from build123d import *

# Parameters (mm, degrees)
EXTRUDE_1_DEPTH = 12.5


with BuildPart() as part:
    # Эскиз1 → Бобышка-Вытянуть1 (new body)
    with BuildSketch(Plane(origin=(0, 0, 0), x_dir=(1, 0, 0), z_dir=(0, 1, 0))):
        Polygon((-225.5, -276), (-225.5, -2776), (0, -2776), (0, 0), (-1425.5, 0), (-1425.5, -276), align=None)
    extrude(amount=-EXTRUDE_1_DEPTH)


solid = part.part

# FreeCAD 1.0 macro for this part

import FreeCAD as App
import Part
import Sketcher


def add_polygon(sketch, points):
    """Adds a closed chain of lines whose ends are joined by coincident constraints."""
    first, n = sketch.GeometryCount, len(points)
    for a, b in zip(points, points[1:] + points[:1]):
        sketch.addGeometry(Part.LineSegment(App.Vector(*a, 0), App.Vector(*b, 0)), False)
    for i in range(n):
        sketch.addConstraint(Sketcher.Constraint("Coincident", first + i, 2, first + (i + 1) % n, 1))

doc = App.newDocument("Part")
params = doc.addObject("Spreadsheet::Sheet", "Params")
for row, (alias, value) in enumerate([
    ("sketch1_width", "1200 mm"),
    ("sketch1_height", "2500 mm"),
    ("sketch1_height2", "2776 mm"),
    ("sketch1_width2", "225.5 mm"),
    ("pad1_length", "12.5 mm"),
], start=1):
    params.set(f"A{row}", alias)
    params.set(f"B{row}", "=" + value)
    params.setAlias(f"B{row}", alias)

body = doc.addObject("PartDesign::Body", "Body")

sketch1 = doc.addObject("Sketcher::SketchObject", "Sketch")
body.addObject(sketch1)
sketch1.AttachmentSupport = (doc.XZ_Plane, [""])
sketch1.MapMode = "FlatFace"
add_polygon(sketch1, [(-225.5, 276), (-225.5, 2776), (0, 2776), (0, 0), (-1425.5, 0), (-1425.5, 276)])
sketch1.addConstraint(Sketcher.Constraint("Vertical", 0))
sketch1.addConstraint(Sketcher.Constraint("Horizontal", 1))
sketch1.addConstraint(Sketcher.Constraint("Vertical", 2))
sketch1.addConstraint(Sketcher.Constraint("Horizontal", 3))
sketch1.addConstraint(Sketcher.Constraint("Vertical", 4))
sketch1.addConstraint(Sketcher.Constraint("Horizontal", 5))
sketch1.addConstraint(Sketcher.Constraint("Coincident", 2, 2, -1, 1))
sketch1.addConstraint(Sketcher.Constraint("DistanceX", 5, 1, 5, 2, 1200.0))
sketch1.addConstraint(Sketcher.Constraint("DistanceY", 0, 1, 0, 2, 2500.0))
sketch1.addConstraint(Sketcher.Constraint("DistanceY", 2, 2, 2, 1, 2776.0))
sketch1.addConstraint(Sketcher.Constraint("DistanceX", 1, 1, 1, 2, 225.5))
sketch1.setExpression("Constraints[13]", "Params.sketch1_width")
sketch1.setExpression("Constraints[14]", "Params.sketch1_height")
sketch1.setExpression("Constraints[15]", "Params.sketch1_height2")
sketch1.setExpression("Constraints[16]", "Params.sketch1_width2")
pad1 = doc.addObject("PartDesign::Pad", "Pad")
body.addObject(pad1)
pad1.Profile = sketch1
pad1.setExpression("Length", "Params.pad1_length")

doc.recompute()
